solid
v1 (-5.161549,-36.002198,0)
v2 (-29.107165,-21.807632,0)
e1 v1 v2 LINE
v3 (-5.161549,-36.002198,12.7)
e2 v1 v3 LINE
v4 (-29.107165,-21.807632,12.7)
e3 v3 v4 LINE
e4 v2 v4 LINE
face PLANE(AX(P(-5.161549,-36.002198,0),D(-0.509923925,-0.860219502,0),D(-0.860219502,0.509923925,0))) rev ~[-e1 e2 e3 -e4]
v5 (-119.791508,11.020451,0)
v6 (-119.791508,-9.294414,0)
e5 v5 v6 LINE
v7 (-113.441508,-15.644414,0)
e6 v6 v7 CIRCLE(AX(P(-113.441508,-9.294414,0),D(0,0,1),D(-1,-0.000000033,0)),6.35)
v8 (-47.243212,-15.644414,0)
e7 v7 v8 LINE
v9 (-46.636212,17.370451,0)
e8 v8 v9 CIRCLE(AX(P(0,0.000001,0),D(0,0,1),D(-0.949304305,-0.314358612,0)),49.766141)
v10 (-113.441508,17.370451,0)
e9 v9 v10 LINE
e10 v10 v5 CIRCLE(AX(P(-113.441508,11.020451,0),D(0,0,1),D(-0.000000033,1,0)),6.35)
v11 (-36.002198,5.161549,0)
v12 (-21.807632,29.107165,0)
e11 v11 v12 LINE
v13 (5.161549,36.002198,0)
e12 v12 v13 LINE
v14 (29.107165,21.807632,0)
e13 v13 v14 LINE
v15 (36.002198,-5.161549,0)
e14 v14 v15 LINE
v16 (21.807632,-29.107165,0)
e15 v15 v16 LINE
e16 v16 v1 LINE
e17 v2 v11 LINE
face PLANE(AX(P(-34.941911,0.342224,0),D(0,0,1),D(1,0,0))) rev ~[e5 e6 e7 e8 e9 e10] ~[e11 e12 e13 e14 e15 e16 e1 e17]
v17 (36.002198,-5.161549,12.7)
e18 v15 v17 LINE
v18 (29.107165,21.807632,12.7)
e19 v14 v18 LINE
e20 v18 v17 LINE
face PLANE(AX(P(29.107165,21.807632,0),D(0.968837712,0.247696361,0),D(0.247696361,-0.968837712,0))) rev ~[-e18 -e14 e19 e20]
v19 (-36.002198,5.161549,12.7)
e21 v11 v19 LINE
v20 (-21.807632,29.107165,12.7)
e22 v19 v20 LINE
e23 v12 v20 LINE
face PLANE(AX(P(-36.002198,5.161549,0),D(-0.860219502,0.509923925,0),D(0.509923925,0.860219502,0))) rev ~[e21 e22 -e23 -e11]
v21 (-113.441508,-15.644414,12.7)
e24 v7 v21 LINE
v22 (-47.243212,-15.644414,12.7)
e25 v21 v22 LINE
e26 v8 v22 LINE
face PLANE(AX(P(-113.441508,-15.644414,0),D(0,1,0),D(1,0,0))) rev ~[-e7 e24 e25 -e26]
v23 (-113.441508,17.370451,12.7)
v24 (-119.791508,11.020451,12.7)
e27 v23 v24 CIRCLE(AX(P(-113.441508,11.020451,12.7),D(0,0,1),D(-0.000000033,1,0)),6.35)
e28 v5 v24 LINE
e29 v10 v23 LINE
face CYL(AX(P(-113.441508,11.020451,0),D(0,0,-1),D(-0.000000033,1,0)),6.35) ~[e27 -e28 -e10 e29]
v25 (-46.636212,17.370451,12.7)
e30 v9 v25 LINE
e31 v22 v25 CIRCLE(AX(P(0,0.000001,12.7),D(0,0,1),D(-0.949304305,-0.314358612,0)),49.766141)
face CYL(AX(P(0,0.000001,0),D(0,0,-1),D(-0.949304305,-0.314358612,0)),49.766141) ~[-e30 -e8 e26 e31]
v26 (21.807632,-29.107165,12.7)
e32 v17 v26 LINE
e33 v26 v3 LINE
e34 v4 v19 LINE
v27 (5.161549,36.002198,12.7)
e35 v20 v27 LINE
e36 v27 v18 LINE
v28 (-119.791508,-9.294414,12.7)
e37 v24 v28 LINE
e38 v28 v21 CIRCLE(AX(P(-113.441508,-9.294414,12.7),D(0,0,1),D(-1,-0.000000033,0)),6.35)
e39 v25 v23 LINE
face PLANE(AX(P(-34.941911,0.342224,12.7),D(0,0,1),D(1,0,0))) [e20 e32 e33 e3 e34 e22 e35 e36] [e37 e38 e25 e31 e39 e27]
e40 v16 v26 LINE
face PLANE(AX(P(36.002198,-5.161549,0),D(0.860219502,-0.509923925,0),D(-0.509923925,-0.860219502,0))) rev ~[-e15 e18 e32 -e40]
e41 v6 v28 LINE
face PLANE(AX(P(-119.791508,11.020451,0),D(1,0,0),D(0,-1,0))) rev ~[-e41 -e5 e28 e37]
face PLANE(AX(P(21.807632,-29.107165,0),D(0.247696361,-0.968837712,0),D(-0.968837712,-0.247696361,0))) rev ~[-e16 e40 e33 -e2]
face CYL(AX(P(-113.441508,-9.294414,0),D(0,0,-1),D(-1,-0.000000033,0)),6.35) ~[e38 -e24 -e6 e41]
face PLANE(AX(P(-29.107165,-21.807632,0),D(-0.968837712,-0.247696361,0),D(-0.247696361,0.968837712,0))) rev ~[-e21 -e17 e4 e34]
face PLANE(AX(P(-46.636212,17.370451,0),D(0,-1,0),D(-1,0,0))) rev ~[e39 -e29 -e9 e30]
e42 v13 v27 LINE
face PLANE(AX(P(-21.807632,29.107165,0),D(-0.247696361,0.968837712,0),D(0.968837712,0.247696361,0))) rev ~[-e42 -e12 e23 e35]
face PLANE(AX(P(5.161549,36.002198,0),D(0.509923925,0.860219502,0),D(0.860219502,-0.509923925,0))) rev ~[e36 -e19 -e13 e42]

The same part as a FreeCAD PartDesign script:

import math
import FreeCAD as App
import Part
import Sketcher

V = App.Vector
Q = App.Units.Quantity


def add_polygon(sketch, points):
    """Adds a closed chain of lines whose ends are joined by coincident constraints."""
    first, n = sketch.GeometryCount, len(points)
    for a, b in zip(points, points[1:] + points[:1]):
        sketch.addGeometry(Part.LineSegment(App.Vector(*a, 0), App.Vector(*b, 0)), False)
    for i in range(n):
        sketch.addConstraint(Sketcher.Constraint("Coincident", first + i, 2, first + (i + 1) % n, 1))

doc = App.newDocument("Part")
body = doc.addObject("PartDesign::Body", "Body")

# Sketch on XY plane
sketch1 = body.newObject("Sketcher::SketchObject", "Sketch")
sketch1.AttachmentSupport = (doc.getObject("XY_Plane"), [""])
sketch1.MapMode = "FlatFace"
sketch1.addGeometry(Part.LineSegment(V(-113, -16, 0), V(-47, -16, 0)), False)  # 0
sketch1.addGeometry(Part.ArcOfCircle(Part.Circle(V(0, 0, 0), V(0, 0, 1), 50), math.radians(-162), math.radians(160)), False)  # 1
sketch1.addGeometry(Part.LineSegment(V(-47, 17, 0), V(-113, 17, 0)), False)  # 2
sketch1.addGeometry(Part.ArcOfCircle(Part.Circle(V(-113, 11, 0), V(0, 0, 1), 6), math.radians(90), math.radians(180)), False)  # 3
sketch1.addGeometry(Part.LineSegment(V(-120, 11, 0), V(-120, -9, 0)), False)  # 4
sketch1.addGeometry(Part.ArcOfCircle(Part.Circle(V(-113, -9, 0), V(0, 0, 1), 6), math.radians(-180), math.radians(-90)), False)  # 5
add_polygon(sketch1, [(5, 36), (29, 22), (36, -5), (22, -29), (-5, -36), (-29, -22), (-36, 5), (-22, 29)])  # lines 6-13
sketch1.addConstraint([
    Sketcher.Constraint("Coincident", 0, 2, 1, 1),
    Sketcher.Constraint("Coincident", 1, 2, 2, 1),
    Sketcher.Constraint("Tangent", 2, 2, 3, 1),
    Sketcher.Constraint("Tangent", 3, 2, 4, 1),
    Sketcher.Constraint("Tangent", 4, 2, 5, 1),
    Sketcher.Constraint("Tangent", 5, 2, 0, 1),
    Sketcher.Constraint("Horizontal", 0),
    Sketcher.Constraint("Horizontal", 2),
    Sketcher.Constraint("Vertical", 4),
    Sketcher.Constraint("Coincident", 1, 3, -1, 1),
    Sketcher.Constraint("Equal", 3, 5),
    Sketcher.Constraint("Symmetric", 6, 2, 10, 2, -1, 1),
    Sketcher.Constraint("Symmetric", 7, 2, 11, 2, -1, 1),
    Sketcher.Constraint("Symmetric", 8, 2, 12, 2, -1, 1),
    Sketcher.Constraint("Symmetric", 9, 2, 13, 2, -1, 1),
    Sketcher.Constraint("Perpendicular", 6, 8),
    Sketcher.Constraint("Perpendicular", 7, 9),
    Sketcher.Constraint("Equal", 6, 7),
    Sketcher.Constraint("Equal", 7, 8),
    Sketcher.Constraint("Equal", 8, 9),
    Sketcher.Constraint("Radius", 3, Q("0.25 in")),
    Sketcher.Constraint("Radius", 1, Q("49.766141 mm")),
    Sketcher.Constraint("DistanceX", 0, 2, 1, 2, Q("0.607 mm")),
    Sketcher.Constraint("DistanceY", 7, 2, 1, 2, Q("22.532 mm")),
    Sketcher.Constraint("DistanceY", 9, 2, 1, 3, Q("36.002199 mm")),
    Sketcher.Constraint("DistanceY", 11, 2, 1, 2, Q("12.208902 mm")),
    Sketcher.Constraint("DistanceX", 0, 1, 0, 2, Q("66.198296 mm")),
    Sketcher.Constraint("DistanceY", 1, 3, 6, 2, Q("21.807631 mm")),
])
pad1 = body.newObject("PartDesign::Pad", "Pad")
pad1.Profile = sketch1
pad1.Length = Q("0.5 in")

doc.recompute()
